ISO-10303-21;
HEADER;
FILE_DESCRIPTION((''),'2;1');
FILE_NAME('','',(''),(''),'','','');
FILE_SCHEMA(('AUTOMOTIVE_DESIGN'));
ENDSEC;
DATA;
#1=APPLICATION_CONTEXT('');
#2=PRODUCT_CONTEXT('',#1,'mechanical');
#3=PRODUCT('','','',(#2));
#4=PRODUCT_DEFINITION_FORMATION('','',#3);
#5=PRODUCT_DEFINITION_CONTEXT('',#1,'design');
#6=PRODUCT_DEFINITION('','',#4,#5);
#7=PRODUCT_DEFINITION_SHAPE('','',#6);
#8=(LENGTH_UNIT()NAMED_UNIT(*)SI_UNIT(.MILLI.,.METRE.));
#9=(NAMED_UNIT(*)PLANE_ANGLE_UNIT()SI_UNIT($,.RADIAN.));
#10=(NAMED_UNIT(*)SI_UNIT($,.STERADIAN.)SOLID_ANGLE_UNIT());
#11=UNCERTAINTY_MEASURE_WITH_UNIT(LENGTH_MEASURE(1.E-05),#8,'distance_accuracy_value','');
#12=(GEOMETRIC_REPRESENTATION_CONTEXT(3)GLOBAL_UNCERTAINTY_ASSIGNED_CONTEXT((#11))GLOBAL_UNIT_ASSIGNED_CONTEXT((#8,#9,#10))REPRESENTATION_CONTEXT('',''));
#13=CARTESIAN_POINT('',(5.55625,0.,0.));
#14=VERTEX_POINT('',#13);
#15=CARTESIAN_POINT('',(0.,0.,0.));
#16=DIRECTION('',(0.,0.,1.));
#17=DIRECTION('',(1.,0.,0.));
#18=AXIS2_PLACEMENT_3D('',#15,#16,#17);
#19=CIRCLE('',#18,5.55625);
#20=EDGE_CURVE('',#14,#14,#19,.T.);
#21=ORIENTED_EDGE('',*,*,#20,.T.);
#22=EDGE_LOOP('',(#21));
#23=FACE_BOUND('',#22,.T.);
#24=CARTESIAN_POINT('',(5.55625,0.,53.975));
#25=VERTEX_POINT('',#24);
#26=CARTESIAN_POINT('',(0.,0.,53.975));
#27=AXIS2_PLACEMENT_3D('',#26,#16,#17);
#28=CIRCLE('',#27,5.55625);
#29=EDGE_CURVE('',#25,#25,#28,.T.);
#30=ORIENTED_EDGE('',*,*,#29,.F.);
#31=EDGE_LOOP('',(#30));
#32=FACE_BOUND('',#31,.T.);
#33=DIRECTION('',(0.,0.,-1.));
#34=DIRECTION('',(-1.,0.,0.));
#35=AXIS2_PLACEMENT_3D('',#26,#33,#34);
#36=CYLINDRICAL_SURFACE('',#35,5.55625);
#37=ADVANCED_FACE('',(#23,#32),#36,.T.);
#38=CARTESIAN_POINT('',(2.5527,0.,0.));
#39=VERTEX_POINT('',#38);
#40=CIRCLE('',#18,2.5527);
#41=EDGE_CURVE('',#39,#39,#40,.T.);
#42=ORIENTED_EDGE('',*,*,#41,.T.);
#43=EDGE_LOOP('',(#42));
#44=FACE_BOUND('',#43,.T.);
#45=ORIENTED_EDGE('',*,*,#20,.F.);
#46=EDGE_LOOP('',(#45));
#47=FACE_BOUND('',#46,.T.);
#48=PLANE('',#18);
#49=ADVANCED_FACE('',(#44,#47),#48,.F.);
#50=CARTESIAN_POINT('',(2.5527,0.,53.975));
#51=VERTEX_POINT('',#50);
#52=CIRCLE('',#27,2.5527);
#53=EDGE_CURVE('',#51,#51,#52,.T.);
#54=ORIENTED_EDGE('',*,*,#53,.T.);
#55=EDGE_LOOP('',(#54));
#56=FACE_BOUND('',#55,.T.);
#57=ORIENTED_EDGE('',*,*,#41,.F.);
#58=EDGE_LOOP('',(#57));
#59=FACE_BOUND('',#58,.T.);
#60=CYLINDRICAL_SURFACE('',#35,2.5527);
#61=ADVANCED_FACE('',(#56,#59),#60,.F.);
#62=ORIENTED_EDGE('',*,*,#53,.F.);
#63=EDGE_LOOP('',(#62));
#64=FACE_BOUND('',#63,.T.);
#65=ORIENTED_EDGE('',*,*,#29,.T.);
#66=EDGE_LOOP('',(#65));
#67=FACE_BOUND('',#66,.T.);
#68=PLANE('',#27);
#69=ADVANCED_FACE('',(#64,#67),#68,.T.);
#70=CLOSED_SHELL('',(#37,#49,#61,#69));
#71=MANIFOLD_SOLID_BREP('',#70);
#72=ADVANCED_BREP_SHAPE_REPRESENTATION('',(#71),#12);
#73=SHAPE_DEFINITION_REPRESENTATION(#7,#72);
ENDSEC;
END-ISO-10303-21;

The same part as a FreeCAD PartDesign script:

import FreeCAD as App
import Part
import Sketcher
Q = App.Units.Quantity

doc = App.newDocument("Part")
body = doc.addObject("PartDesign::Body", "Body")

# Sketch on XY plane
sketch1 = body.newObject("Sketcher::SketchObject", "Sketch")
sketch1.AttachmentSupport = (doc.getObject("XY_Plane"), [""])
sketch1.MapMode = "FlatFace"
sketch1.addGeometry([
    Part.Circle(App.Vector(0, 0, 0), App.Vector(0, 0, 1), 5.6),
    Part.Circle(App.Vector(0, 0, 0), App.Vector(0, 0, 1), 2.6),
], False)
sketch1.addConstraint([
    Sketcher.Constraint("Coincident", 0, 3, -1, 1),
    Sketcher.Constraint("Coincident", 1, 3, -1, 1),
    Sketcher.Constraint("Diameter", 0, Q("0.4375 in")),
    Sketcher.Constraint("Diameter", 1, Q("0.201 in")),
])
pad1 = body.newObject("PartDesign::Pad", "Pad")
pad1.Profile = sketch1
pad1.Length = Q("2.125 in")

doc.recompute()
